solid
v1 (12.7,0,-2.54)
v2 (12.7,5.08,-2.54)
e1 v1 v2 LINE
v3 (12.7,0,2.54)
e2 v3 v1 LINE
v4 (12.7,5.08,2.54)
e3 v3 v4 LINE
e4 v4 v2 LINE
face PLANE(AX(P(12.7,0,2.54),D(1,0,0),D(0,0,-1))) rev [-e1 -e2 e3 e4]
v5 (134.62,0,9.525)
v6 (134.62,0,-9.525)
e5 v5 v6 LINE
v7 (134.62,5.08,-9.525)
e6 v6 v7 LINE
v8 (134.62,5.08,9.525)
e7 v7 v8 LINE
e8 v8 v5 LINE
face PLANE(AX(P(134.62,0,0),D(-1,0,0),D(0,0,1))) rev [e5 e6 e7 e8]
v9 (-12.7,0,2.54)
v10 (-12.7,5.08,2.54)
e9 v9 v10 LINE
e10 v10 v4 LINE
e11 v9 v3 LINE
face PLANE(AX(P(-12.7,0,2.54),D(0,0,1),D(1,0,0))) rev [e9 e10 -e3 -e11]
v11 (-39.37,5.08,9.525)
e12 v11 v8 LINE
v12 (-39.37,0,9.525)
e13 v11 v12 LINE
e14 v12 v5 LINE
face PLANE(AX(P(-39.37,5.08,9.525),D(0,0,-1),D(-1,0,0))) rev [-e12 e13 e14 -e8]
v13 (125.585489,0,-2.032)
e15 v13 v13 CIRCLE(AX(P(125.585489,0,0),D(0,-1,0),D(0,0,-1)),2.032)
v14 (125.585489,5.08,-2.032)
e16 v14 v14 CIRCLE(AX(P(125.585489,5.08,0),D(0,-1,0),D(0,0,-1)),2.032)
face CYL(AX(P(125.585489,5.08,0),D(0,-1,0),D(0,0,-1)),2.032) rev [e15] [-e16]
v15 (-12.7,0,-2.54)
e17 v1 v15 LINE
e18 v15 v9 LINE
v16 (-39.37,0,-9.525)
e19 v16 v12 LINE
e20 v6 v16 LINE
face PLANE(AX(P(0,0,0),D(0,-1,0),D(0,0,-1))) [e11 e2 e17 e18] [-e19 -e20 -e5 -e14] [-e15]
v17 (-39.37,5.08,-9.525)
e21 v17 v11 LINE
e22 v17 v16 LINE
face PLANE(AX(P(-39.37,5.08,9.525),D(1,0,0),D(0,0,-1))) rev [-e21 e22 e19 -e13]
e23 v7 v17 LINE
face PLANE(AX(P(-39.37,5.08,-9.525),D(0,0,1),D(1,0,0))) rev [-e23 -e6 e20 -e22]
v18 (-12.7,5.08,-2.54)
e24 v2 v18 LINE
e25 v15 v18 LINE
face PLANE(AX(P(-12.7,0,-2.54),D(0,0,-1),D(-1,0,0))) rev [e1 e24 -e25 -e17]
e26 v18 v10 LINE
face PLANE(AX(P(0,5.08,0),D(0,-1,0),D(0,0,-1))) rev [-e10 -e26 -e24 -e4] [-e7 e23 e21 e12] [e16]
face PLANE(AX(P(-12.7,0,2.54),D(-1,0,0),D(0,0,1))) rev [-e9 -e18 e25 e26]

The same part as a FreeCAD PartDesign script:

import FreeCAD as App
import Part
import Sketcher
from FreeCAD import Vector
Q = App.Units.Quantity

doc = App.newDocument("Part")
body = doc.addObject("PartDesign::Body", "Body")

# Sketch on XZ plane
sketch1 = doc.addObject("Sketcher::SketchObject", "Sketch")
body.addObject(sketch1)
sketch1.AttachmentSupport = (doc.XZ_Plane, [""])
sketch1.MapMode = "FlatFace"
sketch1.addGeometry(Part.LineSegment(Vector(-39, -10, 0), Vector(-39, 10, 0)), False)
sketch1.addGeometry(Part.LineSegment(Vector(-39, 10, 0), Vector(39, 10, 0)), False)
sketch1.addGeometry(Part.LineSegment(Vector(39, 10, 0), Vector(39, -10, 0)), False)
sketch1.addGeometry(Part.LineSegment(Vector(39, -10, 0), Vector(-39, -10, 0)), False)
sketch1.addConstraint(Sketcher.Constraint("Coincident", 0, 2, 1, 1))
sketch1.addConstraint(Sketcher.Constraint("Coincident", 1, 2, 2, 1))
sketch1.addConstraint(Sketcher.Constraint("Coincident", 2, 2, 3, 1))
sketch1.addConstraint(Sketcher.Constraint("Coincident", 3, 2, 0, 1))
sketch1.addConstraint(Sketcher.Constraint("Vertical", 0))
sketch1.addConstraint(Sketcher.Constraint("Horizontal", 1))
sketch1.addConstraint(Sketcher.Constraint("Vertical", 2))
sketch1.addConstraint(Sketcher.Constraint("Horizontal", 3))
sketch1.addConstraint(Sketcher.Constraint("Symmetric", 0, 2, 2, 2, -1, 1))
sketch1.addConstraint(Sketcher.Constraint("DistanceX", 1, 1, 1, 2, Q("3.1 in")))
sketch1.addConstraint(Sketcher.Constraint("DistanceY", 0, 1, 0, 2, Q("0.75 in")))
pad1 = doc.addObject("PartDesign::Pad", "Pad")
body.addObject(pad1)
pad1.Profile = sketch1
pad1.Length = Q("0.2 in")
pad1.Reversed = True

# Sketch on XZ plane
sketch2 = doc.addObject("Sketcher::SketchObject", "Sketch001")
body.addObject(sketch2)
sketch2.AttachmentSupport = (doc.XZ_Plane, [""])
sketch2.MapMode = "FlatFace"
sketch2.AttachmentOffset = App.Placement(Vector(0, 0, -0.2 * 25.4), App.Rotation())
sketch2.addGeometry(Part.LineSegment(Vector(-13, -3, 0), Vector(-13, 3, 0)), False)
sketch2.addGeometry(Part.LineSegment(Vector(-13, 3, 0), Vector(13, 3, 0)), False)
sketch2.addGeometry(Part.LineSegment(Vector(13, 3, 0), Vector(13, -3, 0)), False)
sketch2.addGeometry(Part.LineSegment(Vector(13, -3, 0), Vector(-13, -3, 0)), False)
sketch2.addConstraint(Sketcher.Constraint("Coincident", 0, 2, 1, 1))
sketch2.addConstraint(Sketcher.Constraint("Coincident", 1, 2, 2, 1))
sketch2.addConstraint(Sketcher.Constraint("Coincident", 2, 2, 3, 1))
sketch2.addConstraint(Sketcher.Constraint("Coincident", 3, 2, 0, 1))
sketch2.addConstraint(Sketcher.Constraint("Vertical", 0))
sketch2.addConstraint(Sketcher.Constraint("Horizontal", 1))
sketch2.addConstraint(Sketcher.Constraint("Vertical", 2))
sketch2.addConstraint(Sketcher.Constraint("Horizontal", 3))
sketch2.addConstraint(Sketcher.Constraint("Symmetric", 0, 2, 2, 2, -1, 1))
sketch2.addConstraint(Sketcher.Constraint("DistanceX", 1, 1, 1, 2, Q("1 in")))
sketch2.addConstraint(Sketcher.Constraint("DistanceY", 0, 1, 0, 2, Q("0.2 in")))
pocket1 = doc.addObject("PartDesign::Pocket", "Pocket")
body.addObject(pocket1)
pocket1.Profile = sketch2
pocket1.Type = "ThroughAll"
pocket1.Reversed = True

# Sketch on YZ plane
sketch3 = doc.addObject("Sketcher::SketchObject", "Sketch002")
body.addObject(sketch3)
sketch3.AttachmentSupport = (doc.YZ_Plane, [""])
sketch3.MapMode = "FlatFace"
sketch3.AttachmentOffset = App.Placement(Vector(0, 0, 1.55 * 25.4), App.Rotation())
sketch3.addGeometry(Part.LineSegment(Vector(5, 10, 0), Vector(0, 10, 0)), False)
sketch3.addGeometry(Part.LineSegment(Vector(0, 10, 0), Vector(0, -10, 0)), False)
sketch3.addGeometry(Part.LineSegment(Vector(0, -10, 0), Vector(5, -10, 0)), False)
sketch3.addGeometry(Part.LineSegment(Vector(5, -10, 0), Vector(5, 10, 0)), False)
sketch3.addConstraint(Sketcher.Constraint("Coincident", 0, 2, 1, 1))
sketch3.addConstraint(Sketcher.Constraint("Coincident", 1, 2, 2, 1))
sketch3.addConstraint(Sketcher.Constraint("Coincident", 2, 2, 3, 1))
sketch3.addConstraint(Sketcher.Constraint("Coincident", 3, 2, 0, 1))
sketch3.addConstraint(Sketcher.Constraint("Horizontal", 0))
sketch3.addConstraint(Sketcher.Constraint("Vertical", 1))
sketch3.addConstraint(Sketcher.Constraint("Horizontal", 2))
sketch3.addConstraint(Sketcher.Constraint("Vertical", 3))
sketch3.addConstraint(Sketcher.Constraint("Symmetric", 0, 2, 1, 2, -1, 1))
sketch3.addConstraint(Sketcher.Constraint("DistanceX", 0, 2, 0, 1, Q("0.2 in")))
sketch3.addConstraint(Sketcher.Constraint("DistanceY", 1, 2, 1, 1, Q("0.75 in")))
pad2 = doc.addObject("PartDesign::Pad", "Pad001")
body.addObject(pad2)
pad2.Profile = sketch3
pad2.Length = Q("3.75 in")

# Sketch on XZ plane
sketch4 = doc.addObject("Sketcher::SketchObject", "Sketch003")
body.addObject(sketch4)
sketch4.AttachmentSupport = (doc.XZ_Plane, [""])
sketch4.MapMode = "FlatFace"
sketch4.addGeometry(Part.Circle(Vector(125.6, 0, 0), Vector(0, 0, 1), 2), False)
sketch4.addConstraint(Sketcher.Constraint("PointOnObject", 0, 3, -1))
sketch4.addConstraint(Sketcher.Constraint("Diameter", 0, Q("0.16 in")))
sketch4.addConstraint(Sketcher.Constraint("DistanceX", -1, 1, 0, 3, 125.585489))
pocket2 = doc.addObject("PartDesign::Pocket", "Pocket001")
body.addObject(pocket2)
pocket2.Profile = sketch4
pocket2.Length = Q("0.2 in")

doc.recompute()
